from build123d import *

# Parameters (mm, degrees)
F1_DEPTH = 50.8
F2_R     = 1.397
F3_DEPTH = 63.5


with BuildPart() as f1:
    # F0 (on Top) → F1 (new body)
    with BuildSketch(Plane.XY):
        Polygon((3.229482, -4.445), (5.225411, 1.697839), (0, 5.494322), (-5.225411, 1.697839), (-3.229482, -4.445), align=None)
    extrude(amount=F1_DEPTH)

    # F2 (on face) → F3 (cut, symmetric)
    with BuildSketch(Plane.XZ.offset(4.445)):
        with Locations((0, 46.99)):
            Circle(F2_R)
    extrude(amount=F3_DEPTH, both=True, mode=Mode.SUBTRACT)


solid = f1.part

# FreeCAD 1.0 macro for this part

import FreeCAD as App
import Part
import Sketcher
Q = App.Units.Quantity

doc = App.newDocument("Part")
params = doc.addObject("Spreadsheet::Sheet", "Params")
for row, (alias, value) in enumerate([
    ("pad1_length", "2 in"),
    ("sketch2_diameter", "0.11 in"),
    ("pocket1_length", "5 in"),
], start=1):
    params.set(f"A{row}", alias)
    params.set(f"B{row}", "=" + value)
    params.setAlias(f"B{row}", alias)

body = doc.addObject("PartDesign::Body", "Body")

# Sketch on XY plane
sketch1 = body.newObject("Sketcher::SketchObject", "Sketch")
sketch1.AttachmentSupport = (doc.getObject("XY_Plane"), [""])
sketch1.MapMode = "FlatFace"
sketch1.addGeometry(Part.LineSegment(App.Vector(3.229482, -4.445, 0), App.Vector(5.225411, 1.697839, 0)), False)
sketch1.addGeometry(Part.LineSegment(App.Vector(5.225411, 1.697839, 0), App.Vector(0, 5.494322, 0)), False)
sketch1.addGeometry(Part.LineSegment(App.Vector(0, 5.494322, 0), App.Vector(-5.225411, 1.697839, 0)), False)
sketch1.addGeometry(Part.LineSegment(App.Vector(-5.225411, 1.697839, 0), App.Vector(-3.229482, -4.445, 0)), False)
sketch1.addGeometry(Part.LineSegment(App.Vector(-3.229482, -4.445, 0), App.Vector(3.229482, -4.445, 0)), False)
sketch1.addConstraint(Sketcher.Constraint("Coincident", 0, 2, 1, 1))
sketch1.addConstraint(Sketcher.Constraint("Coincident", 1, 2, 2, 1))
sketch1.addConstraint(Sketcher.Constraint("Coincident", 2, 2, 3, 1))
sketch1.addConstraint(Sketcher.Constraint("Coincident", 3, 2, 4, 1))
sketch1.addConstraint(Sketcher.Constraint("Coincident", 4, 2, 0, 1))
sketch1.addConstraint(Sketcher.Constraint("Horizontal", 4))
sketch1.addConstraint(Sketcher.Constraint("Symmetric", 0, 2, 2, 2, -2))
sketch1.addConstraint(Sketcher.Constraint("PointOnObject", 1, 2, -2))
sketch1.addConstraint(Sketcher.Constraint("Equal", 0, 1))
sketch1.addConstraint(Sketcher.Constraint("Equal", 2, 3))
sketch1.addConstraint(Sketcher.Constraint("Angle", 0, Q("72.000003 deg")))
sketch1.addConstraint(Sketcher.Constraint("Angle", 1, Q("144.000002 deg")))
sketch1.addConstraint(Sketcher.Constraint("DistanceY", 3, 2, -1, 1, Q("0.175 in")))
sketch1.addConstraint(Sketcher.Constraint("DistanceX", 4, 1, 4, 2, 6.458964))
pad1 = body.newObject("PartDesign::Pad", "Pad")
pad1.Profile = sketch1
pad1.setExpression("Length", "Params.pad1_length")

# Sketch on XZ plane
sketch2 = body.newObject("Sketcher::SketchObject", "Sketch001")
sketch2.AttachmentSupport = (doc.getObject("XZ_Plane"), [""])
sketch2.MapMode = "FlatFace"
sketch2.AttachmentOffset = App.Placement(App.Vector(0, 0, 0.175 * 25.4), App.Rotation())
sketch2.addGeometry(Part.Circle(App.Vector(0, 46.99, 0), App.Vector(0, 0, 1), 1.397), False)
sketch2.addConstraint(Sketcher.Constraint("PointOnObject", 0, 3, -2))
sketch2.addConstraint(Sketcher.Constraint("Diameter", 0, Q("0.11 in")))
sketch2.addConstraint(Sketcher.Constraint("DistanceY", -1, 1, 0, 3, Q("1.85 in")))
sketch2.setExpression("Constraints[1]", "Params.sketch2_diameter")
pocket1 = body.newObject("PartDesign::Pocket", "Pocket")
pocket1.Profile = sketch2
pocket1.setExpression("Length", "Params.pocket1_length")
pocket1.Midplane = True

doc.recompute()
